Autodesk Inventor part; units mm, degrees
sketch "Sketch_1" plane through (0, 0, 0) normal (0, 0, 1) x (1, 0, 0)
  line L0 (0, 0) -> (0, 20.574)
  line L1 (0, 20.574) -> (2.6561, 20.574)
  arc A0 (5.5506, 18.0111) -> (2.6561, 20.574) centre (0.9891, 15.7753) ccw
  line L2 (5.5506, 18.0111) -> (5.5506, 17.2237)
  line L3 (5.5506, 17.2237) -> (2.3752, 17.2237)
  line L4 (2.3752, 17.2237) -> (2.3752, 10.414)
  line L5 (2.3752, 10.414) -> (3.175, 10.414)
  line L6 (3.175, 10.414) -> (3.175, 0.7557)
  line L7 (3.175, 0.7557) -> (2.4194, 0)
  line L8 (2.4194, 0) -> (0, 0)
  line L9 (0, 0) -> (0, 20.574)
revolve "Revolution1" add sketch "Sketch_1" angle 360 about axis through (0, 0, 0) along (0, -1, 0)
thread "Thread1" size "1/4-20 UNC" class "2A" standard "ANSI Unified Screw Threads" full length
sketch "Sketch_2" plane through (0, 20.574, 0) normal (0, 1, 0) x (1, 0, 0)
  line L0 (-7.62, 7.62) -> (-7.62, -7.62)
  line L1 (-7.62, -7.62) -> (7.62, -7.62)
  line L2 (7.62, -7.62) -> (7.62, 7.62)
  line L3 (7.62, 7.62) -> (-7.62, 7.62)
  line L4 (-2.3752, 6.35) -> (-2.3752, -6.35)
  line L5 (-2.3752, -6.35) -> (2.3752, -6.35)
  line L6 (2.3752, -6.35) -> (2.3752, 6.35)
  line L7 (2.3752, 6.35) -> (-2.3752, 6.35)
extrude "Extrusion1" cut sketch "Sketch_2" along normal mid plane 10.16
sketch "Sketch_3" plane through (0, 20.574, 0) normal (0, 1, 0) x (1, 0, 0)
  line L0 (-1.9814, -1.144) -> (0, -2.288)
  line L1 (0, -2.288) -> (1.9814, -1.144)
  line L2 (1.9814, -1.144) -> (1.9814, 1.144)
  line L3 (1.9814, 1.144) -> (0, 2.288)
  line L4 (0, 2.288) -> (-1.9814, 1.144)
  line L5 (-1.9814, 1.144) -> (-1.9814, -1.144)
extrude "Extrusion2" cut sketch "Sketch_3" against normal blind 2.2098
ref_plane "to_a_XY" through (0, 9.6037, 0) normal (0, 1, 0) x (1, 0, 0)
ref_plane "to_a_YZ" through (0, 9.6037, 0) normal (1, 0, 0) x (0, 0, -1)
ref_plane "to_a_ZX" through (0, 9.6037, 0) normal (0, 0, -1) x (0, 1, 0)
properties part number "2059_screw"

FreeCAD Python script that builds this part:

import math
import FreeCAD as App
import Part
import Sketcher

V = App.Vector
Q = App.Units.Quantity


def add_polygon(sketch, points):
    """Adds a closed chain of lines whose ends are joined by coincident constraints."""
    first, n = sketch.GeometryCount, len(points)
    for a, b in zip(points, points[1:] + points[:1]):
        sketch.addGeometry(Part.LineSegment(App.Vector(*a, 0), App.Vector(*b, 0)), False)
    for i in range(n):
        sketch.addConstraint(Sketcher.Constraint("Coincident", first + i, 2, first + (i + 1) % n, 1))

doc = App.newDocument("Part")
body = doc.addObject("PartDesign::Body", "Body")

# Sketch on XY plane
sketch1 = body.newObject("Sketcher::SketchObject", "Sketch")
sketch1.AttachmentSupport = (doc.getObject("XY_Plane"), [""])
sketch1.MapMode = "FlatFace"
sketch1.addGeometry(Part.LineSegment(V(0, 20.6, 0), V(0, 0, 0)), False)
sketch1.addGeometry(Part.LineSegment(V(0, 0, 0), V(2.4, 0, 0)), False)
sketch1.addGeometry(Part.LineSegment(V(2.4, 0, 0), V(3.2, 0.8, 0)), False)
sketch1.addGeometry(Part.LineSegment(V(3.2, 0.8, 0), V(3.2, 10.4, 0)), False)
sketch1.addGeometry(Part.LineSegment(V(3.2, 10.4, 0), V(2.4, 10.4, 0)), False)
sketch1.addGeometry(Part.LineSegment(V(2.4, 10.4, 0), V(2.4, 17.2, 0)), False)
sketch1.addGeometry(Part.LineSegment(V(2.4, 17.2, 0), V(5.6, 17.2, 0)), False)
sketch1.addGeometry(Part.LineSegment(V(5.6, 17.2, 0), V(5.6, 18, 0)), False)
sketch1.addGeometry(Part.ArcOfCircle(Part.Circle(V(1, 15.8, 0), V(0, 0, 1), 5.1), math.radians(26), math.radians(71)), False)
sketch1.addGeometry(Part.LineSegment(V(2.7, 20.6, 0), V(0, 20.6, 0)), False)
sketch1.addConstraint(Sketcher.Constraint("Coincident", 0, 2, 1, 1))
sketch1.addConstraint(Sketcher.Constraint("Coincident", 1, 2, 2, 1))
sketch1.addConstraint(Sketcher.Constraint("Coincident", 2, 2, 3, 1))
sketch1.addConstraint(Sketcher.Constraint("Coincident", 3, 2, 4, 1))
sketch1.addConstraint(Sketcher.Constraint("Coincident", 4, 2, 5, 1))
sketch1.addConstraint(Sketcher.Constraint("Coincident", 5, 2, 6, 1))
sketch1.addConstraint(Sketcher.Constraint("Coincident", 6, 2, 7, 1))
sketch1.addConstraint(Sketcher.Constraint("Coincident", 7, 2, 8, 1))
sketch1.addConstraint(Sketcher.Constraint("Coincident", 8, 2, 9, 1))
sketch1.addConstraint(Sketcher.Constraint("Coincident", 9, 2, 0, 1))
sketch1.addConstraint(Sketcher.Constraint("Vertical", 0))
sketch1.addConstraint(Sketcher.Constraint("Horizontal", 1))
sketch1.addConstraint(Sketcher.Constraint("Vertical", 3))
sketch1.addConstraint(Sketcher.Constraint("Horizontal", 4))
sketch1.addConstraint(Sketcher.Constraint("Vertical", 5))
sketch1.addConstraint(Sketcher.Constraint("Horizontal", 6))
sketch1.addConstraint(Sketcher.Constraint("Vertical", 7))
sketch1.addConstraint(Sketcher.Constraint("Horizontal", 9))
sketch1.addConstraint(Sketcher.Constraint("Coincident", 0, 2, -1, 1))
sketch1.addConstraint(Sketcher.Constraint("Radius", 8, Q("0.2 in")))
sketch1.addConstraint(Sketcher.Constraint("DistanceY", 0, 2, 0, 1, Q("0.81 in")))
sketch1.addConstraint(Sketcher.Constraint("DistanceY", 4, 2, 8, 2, Q("0.4 in")))
sketch1.addConstraint(Sketcher.Constraint("DistanceY", 7, 1, 7, 2, Q("0.031 in")))
sketch1.addConstraint(Sketcher.Constraint("DistanceX", 4, 2, 4, 1, Q("0.0315 in")))
sketch1.addConstraint(Sketcher.Constraint("DistanceY", 5, 1, 5, 2, Q("0.2681 in")))
sketch1.addConstraint(Sketcher.Constraint("DistanceX", -1, 1, 2, 2, Q("0.125 in")))
sketch1.addConstraint(Sketcher.Constraint("DistanceX", 1, 1, 1, 2, Q("2.4194 mm")))
sketch1.addConstraint(Sketcher.Constraint("DistanceX", 6, 1, 6, 2, Q("3.1754 mm")))
sketch1.addConstraint(Sketcher.Constraint("DistanceX", 9, 2, 9, 1, Q("2.656 mm")))
sketch1.addConstraint(Sketcher.Constraint("DistanceY", 3, 1, 3, 2, Q("9.6583 mm")))
revolution = body.newObject("PartDesign::Revolution", "Revolution")
revolution.Profile = sketch1
revolution.ReferenceAxis = (sketch1, ["V_Axis"])
revolution.Angle = 360

# Sketch on XZ plane
sketch2 = body.newObject("Sketcher::SketchObject", "Sketch001")
sketch2.AttachmentSupport = (doc.getObject("XZ_Plane"), [""])
sketch2.MapMode = "FlatFace"
sketch2.AttachmentOffset = App.Placement(V(0, 0, -0.81 * 25.4), App.Rotation())
add_polygon(sketch2, [(7.6, -7.6), (-7.6, -7.6), (-7.6, 7.6), (7.6, 7.6)])  # lines 0-3
add_polygon(sketch2, [(-2.4, 6.3), (-2.4, -6.3), (2.4, -6.3), (2.4, 6.3)])  # lines 4-7
sketch2.addConstraint(Sketcher.Constraint("Horizontal", 0))
sketch2.addConstraint(Sketcher.Constraint("Vertical", 1))
sketch2.addConstraint(Sketcher.Constraint("Horizontal", 2))
sketch2.addConstraint(Sketcher.Constraint("Vertical", 3))
sketch2.addConstraint(Sketcher.Constraint("Vertical", 4))
sketch2.addConstraint(Sketcher.Constraint("Horizontal", 5))
sketch2.addConstraint(Sketcher.Constraint("Vertical", 6))
sketch2.addConstraint(Sketcher.Constraint("Horizontal", 7))
sketch2.addConstraint(Sketcher.Constraint("Symmetric", 0, 2, 2, 2, -1, 1))
sketch2.addConstraint(Sketcher.Constraint("Symmetric", 4, 2, 6, 2, -1, 1))
sketch2.addConstraint(Sketcher.Constraint("Equal", 2, 1))
sketch2.addConstraint(Sketcher.Constraint("DistanceX", 0, 2, 0, 1, Q("0.6 in")))
sketch2.addConstraint(Sketcher.Constraint("DistanceY", 4, 2, 4, 1, Q("0.5 in")))
sketch2.addConstraint(Sketcher.Constraint("DistanceX", 5, 1, 5, 2, Q("4.7504 mm")))
pocket1 = body.newObject("PartDesign::Pocket", "Pocket")
pocket1.Profile = sketch2
pocket1.Length = Q("0.4 in")
pocket1.Midplane = True

# Sketch on XZ plane
sketch3 = body.newObject("Sketcher::SketchObject", "Sketch002")
sketch3.AttachmentSupport = (doc.getObject("XZ_Plane"), [""])
sketch3.MapMode = "FlatFace"
sketch3.AttachmentOffset = App.Placement(V(0, 0, -0.81 * 25.4), App.Rotation())
add_polygon(sketch3, [(-2, -1.1), (-2, 1.1), (0, 2.3), (2, 1.1), (2, -1.1), (0, -2.3)])  # lines 0-5
sketch3.addConstraint(Sketcher.Constraint("Vertical", 0))
sketch3.addConstraint(Sketcher.Constraint("Vertical", 3))
sketch3.addConstraint(Sketcher.Constraint("Symmetric", 0, 2, 3, 2, -1, 1))
sketch3.addConstraint(Sketcher.Constraint("Symmetric", 1, 2, 4, 2, -1, 1))
sketch3.addConstraint(Sketcher.Constraint("PointOnObject", 1, 2, -2))
sketch3.addConstraint(Sketcher.Constraint("Parallel", 2, 5))
sketch3.addConstraint(Sketcher.Constraint("Horizontal", 0, 2, 2, 2))
sketch3.addConstraint(Sketcher.Constraint("Angle", 1, Q("30.0008 deg")))
sketch3.addConstraint(Sketcher.Constraint("DistanceX", 0, 2, -1, 1, Q("0.078 in")))
sketch3.addConstraint(Sketcher.Constraint("DistanceY", 0, 1, 0, 2, Q("2.288 mm")))
pocket2 = body.newObject("PartDesign::Pocket", "Pocket001")
pocket2.Profile = sketch3
pocket2.Length = Q("0.087 in")
pocket2.Reversed = True

doc.recompute()
